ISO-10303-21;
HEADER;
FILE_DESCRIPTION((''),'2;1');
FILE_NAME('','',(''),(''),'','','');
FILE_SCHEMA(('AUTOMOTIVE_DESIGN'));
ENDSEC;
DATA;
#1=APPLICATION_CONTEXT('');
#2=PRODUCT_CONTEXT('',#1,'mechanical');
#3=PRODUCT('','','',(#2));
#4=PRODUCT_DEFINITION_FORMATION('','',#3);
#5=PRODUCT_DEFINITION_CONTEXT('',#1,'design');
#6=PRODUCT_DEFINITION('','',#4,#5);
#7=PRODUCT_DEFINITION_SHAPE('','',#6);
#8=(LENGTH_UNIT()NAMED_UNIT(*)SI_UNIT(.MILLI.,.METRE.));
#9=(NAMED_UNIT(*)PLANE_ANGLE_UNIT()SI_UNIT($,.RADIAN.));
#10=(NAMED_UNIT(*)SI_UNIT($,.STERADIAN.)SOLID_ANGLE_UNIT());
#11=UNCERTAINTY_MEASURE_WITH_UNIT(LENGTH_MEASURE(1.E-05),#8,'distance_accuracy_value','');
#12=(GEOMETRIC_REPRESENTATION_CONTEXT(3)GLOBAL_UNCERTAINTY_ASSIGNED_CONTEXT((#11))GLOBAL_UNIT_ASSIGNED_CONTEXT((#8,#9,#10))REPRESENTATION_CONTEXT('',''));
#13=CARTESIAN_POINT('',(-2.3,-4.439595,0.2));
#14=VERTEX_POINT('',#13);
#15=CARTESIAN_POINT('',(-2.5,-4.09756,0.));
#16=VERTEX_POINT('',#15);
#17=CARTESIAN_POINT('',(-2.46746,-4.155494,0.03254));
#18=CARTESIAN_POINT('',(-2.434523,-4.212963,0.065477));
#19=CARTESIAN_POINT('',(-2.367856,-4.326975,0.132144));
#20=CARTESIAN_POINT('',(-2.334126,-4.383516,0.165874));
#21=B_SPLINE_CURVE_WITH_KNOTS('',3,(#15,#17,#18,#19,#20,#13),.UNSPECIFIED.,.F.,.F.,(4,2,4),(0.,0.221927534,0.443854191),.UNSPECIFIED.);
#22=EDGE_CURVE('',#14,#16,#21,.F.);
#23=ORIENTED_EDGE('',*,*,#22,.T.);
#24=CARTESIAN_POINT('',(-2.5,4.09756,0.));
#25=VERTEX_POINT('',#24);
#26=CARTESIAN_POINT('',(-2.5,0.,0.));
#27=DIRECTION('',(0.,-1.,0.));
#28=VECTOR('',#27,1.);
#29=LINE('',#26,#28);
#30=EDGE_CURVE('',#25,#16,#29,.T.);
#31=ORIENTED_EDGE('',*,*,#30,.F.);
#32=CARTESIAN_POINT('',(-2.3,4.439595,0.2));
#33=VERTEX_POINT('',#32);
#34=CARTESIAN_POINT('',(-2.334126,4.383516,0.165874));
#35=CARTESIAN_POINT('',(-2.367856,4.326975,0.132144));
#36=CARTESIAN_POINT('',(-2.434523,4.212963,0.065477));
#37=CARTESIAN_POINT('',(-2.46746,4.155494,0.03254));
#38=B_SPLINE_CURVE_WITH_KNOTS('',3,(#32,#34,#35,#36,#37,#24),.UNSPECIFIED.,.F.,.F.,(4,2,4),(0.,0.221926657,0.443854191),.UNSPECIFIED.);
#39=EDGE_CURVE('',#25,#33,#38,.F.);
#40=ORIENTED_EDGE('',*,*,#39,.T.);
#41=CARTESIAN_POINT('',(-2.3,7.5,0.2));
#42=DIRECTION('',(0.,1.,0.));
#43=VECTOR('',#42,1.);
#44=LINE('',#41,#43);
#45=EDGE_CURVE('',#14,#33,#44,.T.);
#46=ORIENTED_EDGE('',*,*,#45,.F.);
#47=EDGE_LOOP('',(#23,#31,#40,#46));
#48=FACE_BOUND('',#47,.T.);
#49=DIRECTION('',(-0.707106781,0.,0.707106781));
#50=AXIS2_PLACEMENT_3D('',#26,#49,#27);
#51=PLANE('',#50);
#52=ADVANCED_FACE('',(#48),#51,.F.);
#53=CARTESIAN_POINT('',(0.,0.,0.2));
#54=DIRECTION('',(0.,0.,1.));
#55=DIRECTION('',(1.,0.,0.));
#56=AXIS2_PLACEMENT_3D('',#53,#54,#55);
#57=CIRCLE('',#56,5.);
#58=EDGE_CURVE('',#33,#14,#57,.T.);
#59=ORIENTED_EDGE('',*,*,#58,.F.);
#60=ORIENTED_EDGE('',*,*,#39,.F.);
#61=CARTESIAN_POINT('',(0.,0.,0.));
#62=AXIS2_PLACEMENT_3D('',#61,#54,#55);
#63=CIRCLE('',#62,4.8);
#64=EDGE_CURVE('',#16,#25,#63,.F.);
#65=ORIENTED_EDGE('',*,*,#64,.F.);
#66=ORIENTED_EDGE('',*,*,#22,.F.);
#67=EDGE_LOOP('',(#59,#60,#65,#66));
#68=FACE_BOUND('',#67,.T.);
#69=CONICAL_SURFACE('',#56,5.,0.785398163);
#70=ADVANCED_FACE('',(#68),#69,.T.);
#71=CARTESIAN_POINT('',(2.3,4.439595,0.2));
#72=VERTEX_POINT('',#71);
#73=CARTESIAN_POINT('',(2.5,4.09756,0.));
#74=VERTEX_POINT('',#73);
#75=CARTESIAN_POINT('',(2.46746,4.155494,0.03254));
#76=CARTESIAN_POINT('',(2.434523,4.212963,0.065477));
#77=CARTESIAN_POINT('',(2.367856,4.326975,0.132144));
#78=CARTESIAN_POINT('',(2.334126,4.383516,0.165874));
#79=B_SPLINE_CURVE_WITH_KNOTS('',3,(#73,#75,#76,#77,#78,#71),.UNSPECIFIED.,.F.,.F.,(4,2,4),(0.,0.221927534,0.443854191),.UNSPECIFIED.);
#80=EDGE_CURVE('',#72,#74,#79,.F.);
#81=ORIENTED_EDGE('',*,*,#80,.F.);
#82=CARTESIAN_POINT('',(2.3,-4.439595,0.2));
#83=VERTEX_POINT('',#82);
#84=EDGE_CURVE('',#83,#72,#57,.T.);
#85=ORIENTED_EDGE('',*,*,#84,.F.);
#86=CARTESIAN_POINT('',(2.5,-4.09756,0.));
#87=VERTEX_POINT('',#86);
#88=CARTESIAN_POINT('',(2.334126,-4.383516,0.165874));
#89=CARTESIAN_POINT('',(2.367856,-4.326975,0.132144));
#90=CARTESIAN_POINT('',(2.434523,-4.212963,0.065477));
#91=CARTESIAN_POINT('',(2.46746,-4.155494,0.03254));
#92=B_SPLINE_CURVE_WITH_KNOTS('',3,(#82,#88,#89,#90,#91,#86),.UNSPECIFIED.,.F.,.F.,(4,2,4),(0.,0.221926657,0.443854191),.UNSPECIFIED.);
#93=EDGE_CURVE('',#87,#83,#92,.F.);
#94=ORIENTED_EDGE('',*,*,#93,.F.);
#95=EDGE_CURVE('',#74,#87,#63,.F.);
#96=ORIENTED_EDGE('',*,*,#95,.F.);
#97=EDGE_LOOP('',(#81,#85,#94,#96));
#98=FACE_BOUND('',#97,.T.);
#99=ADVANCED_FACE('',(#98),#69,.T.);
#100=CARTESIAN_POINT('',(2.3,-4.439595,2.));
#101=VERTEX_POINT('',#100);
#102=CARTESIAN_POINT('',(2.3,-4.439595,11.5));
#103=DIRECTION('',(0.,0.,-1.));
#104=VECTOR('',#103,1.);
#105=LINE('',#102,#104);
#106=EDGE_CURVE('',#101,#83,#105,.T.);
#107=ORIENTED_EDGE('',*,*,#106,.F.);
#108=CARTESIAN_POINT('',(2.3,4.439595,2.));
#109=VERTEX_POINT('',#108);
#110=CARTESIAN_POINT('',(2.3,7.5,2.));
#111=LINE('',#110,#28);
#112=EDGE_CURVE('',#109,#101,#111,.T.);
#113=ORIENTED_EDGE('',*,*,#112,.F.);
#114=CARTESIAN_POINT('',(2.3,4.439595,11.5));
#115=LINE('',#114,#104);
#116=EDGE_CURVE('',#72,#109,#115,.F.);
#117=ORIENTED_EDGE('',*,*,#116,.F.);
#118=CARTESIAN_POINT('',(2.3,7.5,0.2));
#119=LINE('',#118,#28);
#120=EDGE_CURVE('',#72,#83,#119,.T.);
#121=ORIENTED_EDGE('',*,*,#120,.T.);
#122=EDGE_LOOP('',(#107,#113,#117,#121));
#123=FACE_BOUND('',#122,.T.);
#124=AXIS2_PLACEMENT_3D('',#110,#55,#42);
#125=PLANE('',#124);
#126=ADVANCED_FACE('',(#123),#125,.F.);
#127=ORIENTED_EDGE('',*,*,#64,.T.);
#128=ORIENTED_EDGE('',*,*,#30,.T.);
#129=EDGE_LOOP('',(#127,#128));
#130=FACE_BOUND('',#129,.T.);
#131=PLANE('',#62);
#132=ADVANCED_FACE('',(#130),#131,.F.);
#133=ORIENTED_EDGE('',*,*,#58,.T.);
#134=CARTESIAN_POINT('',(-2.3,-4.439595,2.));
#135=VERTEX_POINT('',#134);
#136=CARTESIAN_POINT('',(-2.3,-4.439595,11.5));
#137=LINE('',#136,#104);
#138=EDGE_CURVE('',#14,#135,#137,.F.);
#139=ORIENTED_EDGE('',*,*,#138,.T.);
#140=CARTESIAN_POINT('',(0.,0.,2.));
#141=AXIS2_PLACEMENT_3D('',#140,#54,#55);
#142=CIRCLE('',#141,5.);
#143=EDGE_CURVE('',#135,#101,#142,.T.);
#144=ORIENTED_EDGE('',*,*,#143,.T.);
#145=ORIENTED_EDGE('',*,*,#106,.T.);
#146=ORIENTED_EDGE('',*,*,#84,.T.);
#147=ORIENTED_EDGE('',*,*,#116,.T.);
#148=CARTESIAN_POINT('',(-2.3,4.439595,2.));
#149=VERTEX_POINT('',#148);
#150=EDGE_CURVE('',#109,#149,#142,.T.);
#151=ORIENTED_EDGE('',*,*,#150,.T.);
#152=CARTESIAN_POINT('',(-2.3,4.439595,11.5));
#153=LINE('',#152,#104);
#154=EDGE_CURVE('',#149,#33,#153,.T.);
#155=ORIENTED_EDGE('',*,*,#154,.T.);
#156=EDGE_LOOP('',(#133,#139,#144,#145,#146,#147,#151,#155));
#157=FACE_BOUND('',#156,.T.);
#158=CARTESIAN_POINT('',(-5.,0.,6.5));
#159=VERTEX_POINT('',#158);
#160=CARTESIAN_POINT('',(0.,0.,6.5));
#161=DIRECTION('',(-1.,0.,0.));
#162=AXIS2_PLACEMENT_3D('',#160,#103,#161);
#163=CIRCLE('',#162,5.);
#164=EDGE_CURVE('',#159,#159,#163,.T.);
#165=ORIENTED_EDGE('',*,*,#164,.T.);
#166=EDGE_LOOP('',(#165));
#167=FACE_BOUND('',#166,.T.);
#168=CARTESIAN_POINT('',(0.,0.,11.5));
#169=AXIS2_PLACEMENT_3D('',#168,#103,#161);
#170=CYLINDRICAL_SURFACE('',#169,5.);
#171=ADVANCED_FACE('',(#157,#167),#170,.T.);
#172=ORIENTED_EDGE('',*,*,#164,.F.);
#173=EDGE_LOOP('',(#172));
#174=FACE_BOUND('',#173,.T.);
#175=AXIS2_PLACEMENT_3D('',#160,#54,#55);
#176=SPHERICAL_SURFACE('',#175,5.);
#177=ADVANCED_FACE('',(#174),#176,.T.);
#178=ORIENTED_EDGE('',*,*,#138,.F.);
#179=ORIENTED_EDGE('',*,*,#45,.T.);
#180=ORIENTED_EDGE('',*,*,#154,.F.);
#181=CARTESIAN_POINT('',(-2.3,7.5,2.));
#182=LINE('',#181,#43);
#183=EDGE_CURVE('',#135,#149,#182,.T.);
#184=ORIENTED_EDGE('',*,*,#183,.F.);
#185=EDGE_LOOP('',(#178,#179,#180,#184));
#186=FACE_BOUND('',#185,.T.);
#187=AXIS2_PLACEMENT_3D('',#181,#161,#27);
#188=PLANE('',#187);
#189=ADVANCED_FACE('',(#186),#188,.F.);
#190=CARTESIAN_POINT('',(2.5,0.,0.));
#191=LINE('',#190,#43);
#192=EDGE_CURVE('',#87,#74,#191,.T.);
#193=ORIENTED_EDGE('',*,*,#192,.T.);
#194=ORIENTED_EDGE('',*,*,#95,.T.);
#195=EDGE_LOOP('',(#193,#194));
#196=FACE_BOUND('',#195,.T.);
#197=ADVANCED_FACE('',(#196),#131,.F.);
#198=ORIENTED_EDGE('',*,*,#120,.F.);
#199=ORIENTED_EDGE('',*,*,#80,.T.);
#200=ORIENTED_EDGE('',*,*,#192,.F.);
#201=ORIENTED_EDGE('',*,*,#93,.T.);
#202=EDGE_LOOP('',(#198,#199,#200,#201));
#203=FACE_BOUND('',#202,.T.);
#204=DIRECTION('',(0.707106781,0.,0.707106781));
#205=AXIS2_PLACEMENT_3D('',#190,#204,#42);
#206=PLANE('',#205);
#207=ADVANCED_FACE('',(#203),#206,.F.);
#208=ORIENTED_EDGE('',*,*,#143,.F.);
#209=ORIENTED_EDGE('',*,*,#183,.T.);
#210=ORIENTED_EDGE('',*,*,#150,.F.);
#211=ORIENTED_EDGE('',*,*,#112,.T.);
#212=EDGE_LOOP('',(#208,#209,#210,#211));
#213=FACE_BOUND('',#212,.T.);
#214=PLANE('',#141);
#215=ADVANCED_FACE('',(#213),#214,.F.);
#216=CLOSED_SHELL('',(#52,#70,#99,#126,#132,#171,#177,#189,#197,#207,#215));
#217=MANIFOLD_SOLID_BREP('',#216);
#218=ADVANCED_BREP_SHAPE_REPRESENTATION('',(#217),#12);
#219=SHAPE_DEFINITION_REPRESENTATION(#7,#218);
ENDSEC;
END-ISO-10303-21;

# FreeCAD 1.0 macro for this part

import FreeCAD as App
import Part
import Sketcher
from FreeCAD import Vector


def edges_at(feature, points):
    """Names of the edges that pass closest to the given points."""
    edges = feature.Shape.Edges
    near = lambda p: min(range(len(edges)), key=lambda i: edges[i].distToShape(Part.Vertex(*p))[0])
    return sorted({f"Edge{near(p) + 1}" for p in points})


def add_polygon(sketch, points):
    """Adds a closed chain of lines whose ends are joined by coincident constraints."""
    first, n = sketch.GeometryCount, len(points)
    for a, b in zip(points, points[1:] + points[:1]):
        sketch.addGeometry(Part.LineSegment(App.Vector(*a, 0), App.Vector(*b, 0)), False)
    for i in range(n):
        sketch.addConstraint(Sketcher.Constraint("Coincident", first + i, 2, first + (i + 1) % n, 1))

doc = App.newDocument("Part")
body = doc.addObject("PartDesign::Body", "Body")

# Sketch on XY plane
sketch1 = body.newObject("Sketcher::SketchObject", "Sketch")
sketch1.AttachmentSupport = (doc.getObject("XY_Plane"), [""])
sketch1.MapMode = "FlatFace"
sketch1.addGeometry(Part.Circle(Vector(0, 0, 0), Vector(0, 0, 1), 5), False)
sketch1.addConstraint(Sketcher.Constraint("Coincident", 0, 3, -1, 1))
sketch1.addConstraint(Sketcher.Constraint("Diameter", 0, 10.0))
pad1 = body.newObject("PartDesign::Pad", "Pad")
pad1.Profile = sketch1
pad1.Length = 11.5
doc.recompute()

fillet = body.newObject("PartDesign::Fillet", "Fillet")
fillet.Base = (pad1, edges_at(pad1, [(-5, 0, 11.5)]))
fillet.Radius = 5

# Sketch on XY plane
sketch2 = body.newObject("Sketcher::SketchObject", "Sketch001")
sketch2.AttachmentSupport = (doc.getObject("XY_Plane"), [""])
sketch2.MapMode = "FlatFace"
add_polygon(sketch2, [(2.3, 7.5), (2.3, -7.5), (-2.3, -7.5), (-2.3, 7.5)])  # lines 0-3
sketch2.addConstraint(Sketcher.Constraint("Vertical", 0))
sketch2.addConstraint(Sketcher.Constraint("Horizontal", 1))
sketch2.addConstraint(Sketcher.Constraint("Vertical", 2))
sketch2.addConstraint(Sketcher.Constraint("Horizontal", 3))
sketch2.addConstraint(Sketcher.Constraint("Symmetric", 0, 2, 2, 2, -1, 1))
sketch2.addConstraint(Sketcher.Constraint("DistanceY", 0, 2, 0, 1, 15.0))
sketch2.addConstraint(Sketcher.Constraint("DistanceX", 1, 2, 1, 1, 4.6))
pocket1 = body.newObject("PartDesign::Pocket", "Pocket")
pocket1.Profile = sketch2
pocket1.Length = 2
pocket1.Reversed = True
doc.recompute()

chamfer = body.newObject("PartDesign::Chamfer", "Chamfer")
chamfer.Base = (pocket1, edges_at(pocket1, [
    (-5, 0, 0),
    (4.272, 2.598, 0),
    (-2.3, 0, 0),
    (2.3, 0, 0),
]))
chamfer.Size = 0.2

doc.recompute()
